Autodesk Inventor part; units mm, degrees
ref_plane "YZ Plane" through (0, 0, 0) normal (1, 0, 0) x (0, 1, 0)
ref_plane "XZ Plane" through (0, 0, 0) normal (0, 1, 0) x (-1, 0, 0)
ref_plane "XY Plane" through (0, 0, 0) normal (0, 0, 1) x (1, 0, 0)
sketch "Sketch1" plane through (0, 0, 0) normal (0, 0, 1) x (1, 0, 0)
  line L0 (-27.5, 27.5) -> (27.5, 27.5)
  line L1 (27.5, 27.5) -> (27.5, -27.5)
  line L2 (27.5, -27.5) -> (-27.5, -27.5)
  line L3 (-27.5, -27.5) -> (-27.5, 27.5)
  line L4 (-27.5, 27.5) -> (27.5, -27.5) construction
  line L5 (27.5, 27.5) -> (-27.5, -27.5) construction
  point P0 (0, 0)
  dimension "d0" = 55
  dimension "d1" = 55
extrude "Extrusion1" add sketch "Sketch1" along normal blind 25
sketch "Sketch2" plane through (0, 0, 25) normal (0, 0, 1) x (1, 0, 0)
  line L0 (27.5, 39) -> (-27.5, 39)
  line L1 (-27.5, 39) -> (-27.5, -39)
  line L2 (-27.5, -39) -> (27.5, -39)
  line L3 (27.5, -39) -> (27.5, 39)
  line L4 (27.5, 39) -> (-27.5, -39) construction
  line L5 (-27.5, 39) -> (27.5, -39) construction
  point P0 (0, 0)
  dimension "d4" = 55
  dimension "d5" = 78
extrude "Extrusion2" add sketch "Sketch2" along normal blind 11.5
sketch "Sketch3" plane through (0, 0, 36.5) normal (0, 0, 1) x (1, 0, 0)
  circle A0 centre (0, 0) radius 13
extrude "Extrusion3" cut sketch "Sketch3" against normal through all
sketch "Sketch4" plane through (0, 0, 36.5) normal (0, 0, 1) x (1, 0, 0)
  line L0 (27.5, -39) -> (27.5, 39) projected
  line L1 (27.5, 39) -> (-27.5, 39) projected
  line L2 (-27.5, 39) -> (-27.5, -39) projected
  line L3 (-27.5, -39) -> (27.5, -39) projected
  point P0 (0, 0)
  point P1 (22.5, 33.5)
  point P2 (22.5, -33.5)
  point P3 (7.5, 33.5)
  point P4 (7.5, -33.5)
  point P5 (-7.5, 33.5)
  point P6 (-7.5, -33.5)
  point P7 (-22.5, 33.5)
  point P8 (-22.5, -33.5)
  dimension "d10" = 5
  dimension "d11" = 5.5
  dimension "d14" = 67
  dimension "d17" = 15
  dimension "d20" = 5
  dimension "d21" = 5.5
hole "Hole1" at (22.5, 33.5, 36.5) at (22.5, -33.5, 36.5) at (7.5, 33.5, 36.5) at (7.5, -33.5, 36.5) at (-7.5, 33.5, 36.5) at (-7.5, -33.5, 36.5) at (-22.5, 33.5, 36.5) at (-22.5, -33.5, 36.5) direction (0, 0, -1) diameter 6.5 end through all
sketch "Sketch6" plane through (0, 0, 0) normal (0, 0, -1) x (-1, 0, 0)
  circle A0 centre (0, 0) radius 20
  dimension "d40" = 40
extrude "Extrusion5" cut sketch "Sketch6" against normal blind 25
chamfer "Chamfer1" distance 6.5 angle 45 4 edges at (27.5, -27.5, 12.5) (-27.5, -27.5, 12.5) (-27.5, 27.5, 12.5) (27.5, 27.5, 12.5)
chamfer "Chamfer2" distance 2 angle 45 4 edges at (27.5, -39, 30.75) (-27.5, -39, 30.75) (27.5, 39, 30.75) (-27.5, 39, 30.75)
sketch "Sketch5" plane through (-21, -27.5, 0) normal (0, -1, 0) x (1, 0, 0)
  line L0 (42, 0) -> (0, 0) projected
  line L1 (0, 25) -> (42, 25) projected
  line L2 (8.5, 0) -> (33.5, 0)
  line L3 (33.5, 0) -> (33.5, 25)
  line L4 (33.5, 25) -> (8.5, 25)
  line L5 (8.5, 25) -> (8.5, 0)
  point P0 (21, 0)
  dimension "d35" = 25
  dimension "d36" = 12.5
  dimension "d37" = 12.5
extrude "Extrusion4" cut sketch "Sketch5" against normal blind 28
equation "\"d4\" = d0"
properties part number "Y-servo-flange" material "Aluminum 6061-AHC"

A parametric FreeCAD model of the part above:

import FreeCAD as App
import Part
import Sketcher
from FreeCAD import Vector
Q = App.Units.Quantity


def edges_at(feature, points):
    """Names of the edges that pass closest to the given points."""
    edges = feature.Shape.Edges
    near = lambda p: min(range(len(edges)), key=lambda i: edges[i].distToShape(Part.Vertex(*p))[0])
    return sorted({f"Edge{near(p) + 1}" for p in points})

doc = App.newDocument("Part")
body = doc.addObject("PartDesign::Body", "Body")

sketch1 = body.newObject("Sketcher::SketchObject", "Sketch")
sketch1.AttachmentSupport = (doc.getObject("XY_Plane"), [""])
sketch1.MapMode = "FlatFace"
sketch1.addGeometry(Part.LineSegment(Vector(28, 28, 0), Vector(-28, 28, 0)), False)
sketch1.addGeometry(Part.LineSegment(Vector(-28, 28, 0), Vector(-28, -28, 0)), False)
sketch1.addGeometry(Part.LineSegment(Vector(-28, -28, 0), Vector(28, -28, 0)), False)
sketch1.addGeometry(Part.LineSegment(Vector(28, -28, 0), Vector(28, 28, 0)), False)
sketch1.addConstraint(Sketcher.Constraint("Coincident", 0, 2, 1, 1))
sketch1.addConstraint(Sketcher.Constraint("Coincident", 1, 2, 2, 1))
sketch1.addConstraint(Sketcher.Constraint("Coincident", 2, 2, 3, 1))
sketch1.addConstraint(Sketcher.Constraint("Coincident", 3, 2, 0, 1))
sketch1.addConstraint(Sketcher.Constraint("Horizontal", 0))
sketch1.addConstraint(Sketcher.Constraint("Vertical", 1))
sketch1.addConstraint(Sketcher.Constraint("Horizontal", 2))
sketch1.addConstraint(Sketcher.Constraint("Vertical", 3))
sketch1.addConstraint(Sketcher.Constraint("Symmetric", 0, 2, 2, 2, -1, 1))
sketch1.addConstraint(Sketcher.Constraint("Equal", 2, 1))
sketch1.addConstraint(Sketcher.Constraint("DistanceX", 0, 2, 0, 1, Q("55 mm")))
pad1 = body.newObject("PartDesign::Pad", "Pad")
pad1.Profile = sketch1
pad1.Length = 25

sketch2 = body.newObject("Sketcher::SketchObject", "Sketch001")
sketch2.AttachmentSupport = (doc.getObject("XY_Plane"), [""])
sketch2.MapMode = "FlatFace"
sketch2.AttachmentOffset = App.Placement(Vector(0, 0, 25), App.Rotation())
sketch2.addGeometry(Part.LineSegment(Vector(28, -39, 0), Vector(28, 39, 0)), False)
sketch2.addGeometry(Part.LineSegment(Vector(28, 39, 0), Vector(-28, 39, 0)), False)
sketch2.addGeometry(Part.LineSegment(Vector(-28, 39, 0), Vector(-28, -39, 0)), False)
sketch2.addGeometry(Part.LineSegment(Vector(-28, -39, 0), Vector(28, -39, 0)), False)
sketch2.addConstraint(Sketcher.Constraint("Coincident", 0, 2, 1, 1))
sketch2.addConstraint(Sketcher.Constraint("Coincident", 1, 2, 2, 1))
sketch2.addConstraint(Sketcher.Constraint("Coincident", 2, 2, 3, 1))
sketch2.addConstraint(Sketcher.Constraint("Coincident", 3, 2, 0, 1))
sketch2.addConstraint(Sketcher.Constraint("Vertical", 0))
sketch2.addConstraint(Sketcher.Constraint("Horizontal", 1))
sketch2.addConstraint(Sketcher.Constraint("Vertical", 2))
sketch2.addConstraint(Sketcher.Constraint("Horizontal", 3))
sketch2.addConstraint(Sketcher.Constraint("Symmetric", 0, 2, 2, 2, -1, 1))
sketch2.addConstraint(Sketcher.Constraint("DistanceX", 1, 2, 1, 1, Q("55 mm")))
sketch2.addConstraint(Sketcher.Constraint("DistanceY", 0, 1, 0, 2, Q("78 mm")))
pad2 = body.newObject("PartDesign::Pad", "Pad001")
pad2.Profile = sketch2
pad2.Length = 11.5

sketch3 = body.newObject("Sketcher::SketchObject", "Sketch002")
sketch3.AttachmentSupport = (doc.getObject("XY_Plane"), [""])
sketch3.MapMode = "FlatFace"
sketch3.AttachmentOffset = App.Placement(Vector(0, 0, 36.5), App.Rotation())
sketch3.addGeometry(Part.Circle(Vector(0, 0, 0), Vector(0, 0, 1), 13), False)
sketch3.addConstraint(Sketcher.Constraint("Coincident", 0, 3, -1, 1))
sketch3.addConstraint(Sketcher.Constraint("Diameter", 0, Q("26 mm")))
pocket1 = body.newObject("PartDesign::Pocket", "Pocket")
pocket1.Profile = sketch3
pocket1.Type = "ThroughAll"

sketch4 = body.newObject("Sketcher::SketchObject", "Sketch003")
sketch4.AttachmentSupport = (doc.getObject("XY_Plane"), [""])
sketch4.MapMode = "FlatFace"
sketch4.AttachmentOffset = App.Placement(Vector(0, 0, 36.5), App.Rotation())
sketch4.addGeometry(Part.Circle(Vector(22.5, 33.5, 0), Vector(0, 0, 1), 3.2), False)
sketch4.addGeometry(Part.Circle(Vector(22.5, -33.5, 0), Vector(0, 0, 1), 3.2), False)
sketch4.addGeometry(Part.Circle(Vector(7.5, 33.5, 0), Vector(0, 0, 1), 3.2), False)
sketch4.addGeometry(Part.Circle(Vector(7.5, -33.5, 0), Vector(0, 0, 1), 3.2), False)
sketch4.addGeometry(Part.Circle(Vector(-7.5, 33.5, 0), Vector(0, 0, 1), 3.2), False)
sketch4.addGeometry(Part.Circle(Vector(-7.5, -33.5, 0), Vector(0, 0, 1), 3.2), False)
sketch4.addGeometry(Part.Circle(Vector(-22.5, 33.5, 0), Vector(0, 0, 1), 3.2), False)
sketch4.addGeometry(Part.Circle(Vector(-22.5, -33.5, 0), Vector(0, 0, 1), 3.2), False)
sketch4.addConstraint(Sketcher.Constraint("Equal", 0, 1))
sketch4.addConstraint(Sketcher.Constraint("Equal", 1, 2))
sketch4.addConstraint(Sketcher.Constraint("Equal", 2, 3))
sketch4.addConstraint(Sketcher.Constraint("Equal", 3, 4))
sketch4.addConstraint(Sketcher.Constraint("Equal", 4, 5))
sketch4.addConstraint(Sketcher.Constraint("Equal", 5, 6))
sketch4.addConstraint(Sketcher.Constraint("Equal", 6, 7))
sketch4.addConstraint(Sketcher.Constraint("Symmetric", 3, 3, 4, 3, -1, 1))
sketch4.addConstraint(Sketcher.Constraint("Symmetric", 2, 3, 5, 3, -1, 1))
sketch4.addConstraint(Sketcher.Constraint("Symmetric", 1, 3, 6, 3, -1, 1))
sketch4.addConstraint(Sketcher.Constraint("Symmetric", 0, 3, 7, 3, -1, 1))
sketch4.addConstraint(Sketcher.Constraint("Symmetric", 2, 3, 4, 3, -2))
sketch4.addConstraint(Sketcher.Constraint("Symmetric", 0, 3, 6, 3, -2))
sketch4.addConstraint(Sketcher.Constraint("Horizontal", 0, 3, 2, 3))
sketch4.addConstraint(Sketcher.Constraint("Diameter", 0, Q("6.5 mm")))
sketch4.addConstraint(Sketcher.Constraint("DistanceY", 1, 3, 0, 3, Q("67 mm")))
sketch4.addConstraint(Sketcher.Constraint("DistanceX", 2, 3, 0, 3, Q("15 mm")))
sketch4.addConstraint(Sketcher.Constraint("DistanceX", 4, 3, 2, 3, Q("15 mm")))
doc.recompute()
hole = body.newObject("PartDesign::Hole", "Hole")
hole.Profile = sketch4
hole.ThreadType = "None"
hole.Diameter = 6.5
hole.DepthType = "ThroughAll"

sketch5 = body.newObject("Sketcher::SketchObject", "Sketch004")
sketch5.AttachmentSupport = (doc.getObject("XY_Plane"), [""])
sketch5.MapMode = "FlatFace"
sketch5.addGeometry(Part.Circle(Vector(0, 0, 0), Vector(0, 0, 1), 20), False)
sketch5.addConstraint(Sketcher.Constraint("Coincident", 0, 3, -1, 1))
sketch5.addConstraint(Sketcher.Constraint("Diameter", 0, Q("40 mm")))
pocket2 = body.newObject("PartDesign::Pocket", "Pocket001")
pocket2.Profile = sketch5
pocket2.Length = 25
pocket2.Reversed = True
doc.recompute()

chamfer = body.newObject("PartDesign::Chamfer", "Chamfer")
chamfer.Base = (pocket2, edges_at(pocket2, [
    (27.5, -27.5, 12.5),
    (-27.5, -27.5, 12.5),
    (-27.5, 27.5, 12.5),
    (27.5, 27.5, 12.5),
]))
chamfer.Size = 6.5
doc.recompute()

chamfer2 = body.newObject("PartDesign::Chamfer", "Chamfer001")
chamfer2.Base = (chamfer, edges_at(chamfer, [
    (27.5, -39, 30.75),
    (-27.5, -39, 30.75),
    (27.5, 39, 30.75),
    (-27.5, 39, 30.75),
]))
chamfer2.Size = 2

sketch6 = body.newObject("Sketcher::SketchObject", "Sketch005")
sketch6.AttachmentSupport = (doc.getObject("XZ_Plane"), [""])
sketch6.MapMode = "FlatFace"
sketch6.AttachmentOffset = App.Placement(Vector(0, 0, 27.5), App.Rotation())
sketch6.addGeometry(Part.LineSegment(Vector(-12, 0, 0), Vector(12, 0, 0)), False)
sketch6.addGeometry(Part.LineSegment(Vector(12, 0, 0), Vector(12, 25, 0)), False)
sketch6.addGeometry(Part.LineSegment(Vector(12, 25, 0), Vector(-12, 25, 0)), False)
sketch6.addGeometry(Part.LineSegment(Vector(-12, 25, 0), Vector(-12, 0, 0)), False)
sketch6.addConstraint(Sketcher.Constraint("Coincident", 0, 2, 1, 1))
sketch6.addConstraint(Sketcher.Constraint("Coincident", 1, 2, 2, 1))
sketch6.addConstraint(Sketcher.Constraint("Coincident", 2, 2, 3, 1))
sketch6.addConstraint(Sketcher.Constraint("Coincident", 3, 2, 0, 1))
sketch6.addConstraint(Sketcher.Constraint("Horizontal", 0))
sketch6.addConstraint(Sketcher.Constraint("Vertical", 1))
sketch6.addConstraint(Sketcher.Constraint("Horizontal", 2))
sketch6.addConstraint(Sketcher.Constraint("Vertical", 3))
sketch6.addConstraint(Sketcher.Constraint("Symmetric", 0, 2, 3, 2, -1, 1))
sketch6.addConstraint(Sketcher.Constraint("Equal", 2, 1))
sketch6.addConstraint(Sketcher.Constraint("DistanceX", 0, 1, 0, 2, Q("25 mm")))
pocket3 = body.newObject("PartDesign::Pocket", "Pocket002")
pocket3.Profile = sketch6
pocket3.Length = 28

doc.recompute()
